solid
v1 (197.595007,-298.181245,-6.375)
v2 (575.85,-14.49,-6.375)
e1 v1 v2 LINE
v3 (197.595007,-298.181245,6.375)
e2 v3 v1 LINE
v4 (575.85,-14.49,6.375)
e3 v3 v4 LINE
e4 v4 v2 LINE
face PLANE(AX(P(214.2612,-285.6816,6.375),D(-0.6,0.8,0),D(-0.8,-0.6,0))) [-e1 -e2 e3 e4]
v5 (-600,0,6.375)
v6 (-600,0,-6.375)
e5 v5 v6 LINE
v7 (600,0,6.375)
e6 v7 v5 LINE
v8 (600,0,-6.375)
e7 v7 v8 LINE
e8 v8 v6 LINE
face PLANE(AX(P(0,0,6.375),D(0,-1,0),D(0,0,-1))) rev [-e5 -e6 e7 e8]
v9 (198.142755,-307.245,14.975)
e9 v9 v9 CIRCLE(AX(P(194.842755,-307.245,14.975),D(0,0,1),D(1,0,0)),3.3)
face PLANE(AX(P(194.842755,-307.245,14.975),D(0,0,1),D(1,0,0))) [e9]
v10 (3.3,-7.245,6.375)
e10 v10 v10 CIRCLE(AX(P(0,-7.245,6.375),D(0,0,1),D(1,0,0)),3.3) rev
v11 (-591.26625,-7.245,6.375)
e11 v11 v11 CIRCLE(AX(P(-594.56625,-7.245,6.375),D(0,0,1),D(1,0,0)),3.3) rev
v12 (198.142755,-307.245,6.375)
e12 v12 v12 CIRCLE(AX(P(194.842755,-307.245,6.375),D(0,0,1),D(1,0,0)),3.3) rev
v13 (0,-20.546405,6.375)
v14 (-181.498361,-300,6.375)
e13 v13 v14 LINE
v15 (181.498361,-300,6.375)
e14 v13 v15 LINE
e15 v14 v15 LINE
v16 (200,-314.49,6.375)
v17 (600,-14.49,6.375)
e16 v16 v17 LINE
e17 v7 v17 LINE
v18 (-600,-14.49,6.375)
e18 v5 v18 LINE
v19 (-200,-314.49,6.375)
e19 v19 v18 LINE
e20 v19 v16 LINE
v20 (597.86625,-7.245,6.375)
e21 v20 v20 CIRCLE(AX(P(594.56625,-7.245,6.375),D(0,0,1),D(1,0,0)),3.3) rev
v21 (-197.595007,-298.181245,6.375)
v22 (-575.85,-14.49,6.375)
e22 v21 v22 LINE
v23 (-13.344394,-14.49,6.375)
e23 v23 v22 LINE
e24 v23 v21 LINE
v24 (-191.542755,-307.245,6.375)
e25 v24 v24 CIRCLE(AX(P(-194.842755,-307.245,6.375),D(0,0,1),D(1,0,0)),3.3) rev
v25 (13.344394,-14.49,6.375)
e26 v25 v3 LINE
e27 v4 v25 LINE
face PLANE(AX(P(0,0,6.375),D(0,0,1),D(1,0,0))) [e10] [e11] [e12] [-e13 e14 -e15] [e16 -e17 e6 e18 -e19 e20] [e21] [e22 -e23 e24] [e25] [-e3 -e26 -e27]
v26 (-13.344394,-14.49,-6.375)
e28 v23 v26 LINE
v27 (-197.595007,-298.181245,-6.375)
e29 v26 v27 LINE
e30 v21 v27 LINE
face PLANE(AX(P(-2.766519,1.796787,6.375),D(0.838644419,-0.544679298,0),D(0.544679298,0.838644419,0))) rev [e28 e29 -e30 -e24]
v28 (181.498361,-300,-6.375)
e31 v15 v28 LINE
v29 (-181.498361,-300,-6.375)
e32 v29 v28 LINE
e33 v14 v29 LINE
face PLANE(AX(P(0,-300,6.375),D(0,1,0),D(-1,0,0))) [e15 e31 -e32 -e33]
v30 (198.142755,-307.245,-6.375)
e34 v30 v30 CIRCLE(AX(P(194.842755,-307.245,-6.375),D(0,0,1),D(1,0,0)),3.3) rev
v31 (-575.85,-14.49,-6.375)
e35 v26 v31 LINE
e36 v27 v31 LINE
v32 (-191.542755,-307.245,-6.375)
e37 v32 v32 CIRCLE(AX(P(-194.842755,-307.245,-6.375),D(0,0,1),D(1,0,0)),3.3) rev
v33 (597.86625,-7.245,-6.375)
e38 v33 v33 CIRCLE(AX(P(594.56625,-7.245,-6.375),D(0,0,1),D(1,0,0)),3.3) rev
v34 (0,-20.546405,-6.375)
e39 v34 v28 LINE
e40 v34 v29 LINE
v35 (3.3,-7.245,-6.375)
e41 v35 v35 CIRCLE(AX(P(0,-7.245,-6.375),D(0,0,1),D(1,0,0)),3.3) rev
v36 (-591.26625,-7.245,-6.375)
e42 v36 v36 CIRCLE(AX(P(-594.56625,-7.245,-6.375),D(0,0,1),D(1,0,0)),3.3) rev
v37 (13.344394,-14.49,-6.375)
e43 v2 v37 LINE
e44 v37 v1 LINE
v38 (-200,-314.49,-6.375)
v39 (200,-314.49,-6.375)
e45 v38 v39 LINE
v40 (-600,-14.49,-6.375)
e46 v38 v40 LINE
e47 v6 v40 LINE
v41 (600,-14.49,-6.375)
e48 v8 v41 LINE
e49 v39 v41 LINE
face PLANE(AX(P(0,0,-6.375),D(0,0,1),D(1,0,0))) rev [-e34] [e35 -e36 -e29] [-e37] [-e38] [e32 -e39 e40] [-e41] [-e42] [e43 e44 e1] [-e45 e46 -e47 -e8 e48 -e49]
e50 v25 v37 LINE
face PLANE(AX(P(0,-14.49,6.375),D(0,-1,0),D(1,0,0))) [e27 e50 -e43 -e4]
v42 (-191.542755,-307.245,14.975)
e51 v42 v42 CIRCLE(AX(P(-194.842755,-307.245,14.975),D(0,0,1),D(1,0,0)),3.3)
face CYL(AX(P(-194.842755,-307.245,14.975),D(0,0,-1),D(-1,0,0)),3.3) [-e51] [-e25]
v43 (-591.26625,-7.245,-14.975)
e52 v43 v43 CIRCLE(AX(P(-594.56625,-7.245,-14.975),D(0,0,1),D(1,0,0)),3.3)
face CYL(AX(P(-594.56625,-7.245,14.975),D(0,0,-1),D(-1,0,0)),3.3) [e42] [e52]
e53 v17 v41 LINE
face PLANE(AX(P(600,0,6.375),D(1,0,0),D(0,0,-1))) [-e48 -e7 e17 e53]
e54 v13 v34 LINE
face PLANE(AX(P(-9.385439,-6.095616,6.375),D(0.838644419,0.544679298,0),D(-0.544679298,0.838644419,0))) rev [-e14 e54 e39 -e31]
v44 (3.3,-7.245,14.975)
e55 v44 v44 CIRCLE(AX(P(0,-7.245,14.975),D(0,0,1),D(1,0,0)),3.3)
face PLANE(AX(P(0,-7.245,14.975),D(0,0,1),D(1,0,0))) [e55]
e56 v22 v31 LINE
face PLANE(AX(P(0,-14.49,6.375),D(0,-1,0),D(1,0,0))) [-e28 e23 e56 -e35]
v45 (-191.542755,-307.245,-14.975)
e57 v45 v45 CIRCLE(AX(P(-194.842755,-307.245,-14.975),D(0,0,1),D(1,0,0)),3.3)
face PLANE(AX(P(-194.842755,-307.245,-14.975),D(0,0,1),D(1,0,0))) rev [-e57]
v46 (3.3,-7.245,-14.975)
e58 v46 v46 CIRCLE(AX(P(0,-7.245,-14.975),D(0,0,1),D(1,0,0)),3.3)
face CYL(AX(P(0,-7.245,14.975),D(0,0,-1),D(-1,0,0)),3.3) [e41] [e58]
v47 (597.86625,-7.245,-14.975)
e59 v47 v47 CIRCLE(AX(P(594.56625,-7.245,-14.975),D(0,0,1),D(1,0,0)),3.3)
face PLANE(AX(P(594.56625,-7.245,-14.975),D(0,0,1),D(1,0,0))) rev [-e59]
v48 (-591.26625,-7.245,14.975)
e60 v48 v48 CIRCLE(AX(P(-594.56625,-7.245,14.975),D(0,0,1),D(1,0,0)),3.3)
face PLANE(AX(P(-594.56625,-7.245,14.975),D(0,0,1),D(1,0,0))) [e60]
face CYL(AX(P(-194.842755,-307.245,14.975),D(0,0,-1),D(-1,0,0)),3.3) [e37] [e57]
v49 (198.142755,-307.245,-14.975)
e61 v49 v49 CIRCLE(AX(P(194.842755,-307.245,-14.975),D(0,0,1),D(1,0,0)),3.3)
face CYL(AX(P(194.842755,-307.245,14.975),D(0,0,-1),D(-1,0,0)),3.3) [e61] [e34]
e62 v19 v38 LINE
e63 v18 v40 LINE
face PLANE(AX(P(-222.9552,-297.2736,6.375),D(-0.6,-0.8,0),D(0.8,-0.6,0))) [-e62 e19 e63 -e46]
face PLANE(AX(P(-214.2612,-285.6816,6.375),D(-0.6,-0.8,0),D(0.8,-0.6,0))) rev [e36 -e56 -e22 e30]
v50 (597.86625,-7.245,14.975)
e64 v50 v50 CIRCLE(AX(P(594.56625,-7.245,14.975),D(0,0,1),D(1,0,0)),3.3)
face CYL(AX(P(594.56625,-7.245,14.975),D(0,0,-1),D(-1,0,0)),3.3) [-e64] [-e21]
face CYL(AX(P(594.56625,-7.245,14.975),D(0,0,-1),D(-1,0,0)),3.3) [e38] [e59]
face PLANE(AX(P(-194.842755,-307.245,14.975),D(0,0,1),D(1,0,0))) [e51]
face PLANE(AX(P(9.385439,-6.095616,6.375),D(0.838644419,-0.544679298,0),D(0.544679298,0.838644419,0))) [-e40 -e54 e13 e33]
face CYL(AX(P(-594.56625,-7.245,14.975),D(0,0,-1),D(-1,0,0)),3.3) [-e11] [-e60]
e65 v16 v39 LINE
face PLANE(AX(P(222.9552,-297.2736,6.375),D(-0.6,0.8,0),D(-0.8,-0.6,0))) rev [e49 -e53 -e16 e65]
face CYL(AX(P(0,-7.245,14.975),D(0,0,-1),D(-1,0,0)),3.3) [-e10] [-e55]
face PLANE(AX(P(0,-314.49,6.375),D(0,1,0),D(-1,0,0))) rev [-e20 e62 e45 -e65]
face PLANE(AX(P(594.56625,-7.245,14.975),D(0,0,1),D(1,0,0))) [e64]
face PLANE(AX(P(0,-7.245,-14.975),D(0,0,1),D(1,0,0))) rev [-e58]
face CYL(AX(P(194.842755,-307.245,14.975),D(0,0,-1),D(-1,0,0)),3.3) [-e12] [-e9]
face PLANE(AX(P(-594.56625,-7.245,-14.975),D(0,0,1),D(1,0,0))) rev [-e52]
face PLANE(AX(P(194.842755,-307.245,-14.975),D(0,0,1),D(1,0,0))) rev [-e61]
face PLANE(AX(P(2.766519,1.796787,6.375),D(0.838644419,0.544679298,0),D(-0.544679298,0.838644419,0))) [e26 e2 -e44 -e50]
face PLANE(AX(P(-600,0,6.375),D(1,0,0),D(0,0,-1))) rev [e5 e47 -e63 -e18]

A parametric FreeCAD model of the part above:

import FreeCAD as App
import Part
import Sketcher

V = App.Vector
Q = App.Units.Quantity

doc = App.newDocument("Part")
params = doc.addObject("Spreadsheet::Sheet", "Params")
for row, (alias, value) in enumerate([
    ("sketch1_width", "400 mm"),
    ("sketch1_width2", "1200 mm"),
    ("sketch1_length", "500 mm"),
    ("sketch1_height", "14.49 mm"),
    ("pad1_length", "12.75 mm"),
    ("sketch2_diameter", "6.6 mm"),
    ("pad2_length", "29.95 mm"),
], start=1):
    params.set(f"A{row}", alias)
    params.set(f"B{row}", "=" + value)
    params.setAlias(f"B{row}", alias)

body = doc.addObject("PartDesign::Body", "Body")

# Sketch on XY plane
sketch1 = body.newObject("Sketcher::SketchObject", "Sketch")
sketch1.AttachmentSupport = (doc.getObject("XY_Plane"), [""])
sketch1.MapMode = "FlatFace"
sketch1.addGeometry(Part.LineSegment(V(-600, -14, 0), V(-200, -314, 0)), False)
sketch1.addGeometry(Part.LineSegment(V(-200, -314, 0), V(200, -314, 0)), False)
sketch1.addGeometry(Part.LineSegment(V(200, -314, 0), V(600, -14, 0)), False)
sketch1.addGeometry(Part.LineSegment(V(600, -14, 0), V(600, 0, 0)), False)
sketch1.addGeometry(Part.LineSegment(V(600, 0, 0), V(-600, 0, 0)), False)
sketch1.addGeometry(Part.LineSegment(V(-600, 0, 0), V(-600, -14, 0)), False)
sketch1.addGeometry(Part.LineSegment(V(-13, -14, 0), V(-198, -298, 0)), False)
sketch1.addGeometry(Part.LineSegment(V(-198, -298, 0), V(-576, -14, 0)), False)
sketch1.addGeometry(Part.LineSegment(V(-576, -14, 0), V(-13, -14, 0)), False)
sketch1.addGeometry(Part.LineSegment(V(181, -300, 0), V(-181, -300, 0)), False)
sketch1.addGeometry(Part.LineSegment(V(-181, -300, 0), V(0, -21, 0)), False)
sketch1.addGeometry(Part.LineSegment(V(0, -21, 0), V(181, -300, 0)), False)
sketch1.addGeometry(Part.LineSegment(V(13, -14, 0), V(576, -14, 0)), False)
sketch1.addGeometry(Part.LineSegment(V(576, -14, 0), V(198, -298, 0)), False)
sketch1.addGeometry(Part.LineSegment(V(198, -298, 0), V(13, -14, 0)), False)
sketch1.addConstraint(Sketcher.Constraint("Coincident", 0, 2, 1, 1))
sketch1.addConstraint(Sketcher.Constraint("Coincident", 1, 2, 2, 1))
sketch1.addConstraint(Sketcher.Constraint("Coincident", 2, 2, 3, 1))
sketch1.addConstraint(Sketcher.Constraint("Coincident", 3, 2, 4, 1))
sketch1.addConstraint(Sketcher.Constraint("Coincident", 4, 2, 5, 1))
sketch1.addConstraint(Sketcher.Constraint("Coincident", 5, 2, 0, 1))
sketch1.addConstraint(Sketcher.Constraint("Coincident", 6, 2, 7, 1))
sketch1.addConstraint(Sketcher.Constraint("Coincident", 7, 2, 8, 1))
sketch1.addConstraint(Sketcher.Constraint("Coincident", 8, 2, 6, 1))
sketch1.addConstraint(Sketcher.Constraint("Coincident", 9, 2, 10, 1))
sketch1.addConstraint(Sketcher.Constraint("Coincident", 10, 2, 11, 1))
sketch1.addConstraint(Sketcher.Constraint("Coincident", 11, 2, 9, 1))
sketch1.addConstraint(Sketcher.Constraint("Coincident", 12, 2, 13, 1))
sketch1.addConstraint(Sketcher.Constraint("Coincident", 13, 2, 14, 1))
sketch1.addConstraint(Sketcher.Constraint("Coincident", 14, 2, 12, 1))
sketch1.addConstraint(Sketcher.Constraint("Horizontal", 1))
sketch1.addConstraint(Sketcher.Constraint("Vertical", 3))
sketch1.addConstraint(Sketcher.Constraint("Horizontal", 4))
sketch1.addConstraint(Sketcher.Constraint("Vertical", 5))
sketch1.addConstraint(Sketcher.Constraint("Horizontal", 8))
sketch1.addConstraint(Sketcher.Constraint("Horizontal", 9))
sketch1.addConstraint(Sketcher.Constraint("Horizontal", 12))
sketch1.addConstraint(Sketcher.Constraint("Symmetric", 3, 2, 4, 2, -1, 1))
sketch1.addConstraint(Sketcher.Constraint("Symmetric", 7, 2, 12, 2, -2))
sketch1.addConstraint(Sketcher.Constraint("Symmetric", 6, 2, 13, 2, -2))
sketch1.addConstraint(Sketcher.Constraint("PointOnObject", 10, 2, -2))
sketch1.addConstraint(Sketcher.Constraint("Parallel", 0, 7))
sketch1.addConstraint(Sketcher.Constraint("Parallel", 6, 10))
sketch1.addConstraint(Sketcher.Constraint("Parallel", 2, 13))
sketch1.addConstraint(Sketcher.Constraint("Parallel", 11, 14))
sketch1.addConstraint(Sketcher.Constraint("Horizontal", 2, 2, 5, 2))
sketch1.addConstraint(Sketcher.Constraint("Horizontal", 5, 2, 7, 2))
sketch1.addConstraint(Sketcher.Constraint("Equal", 8, 12))
sketch1.addConstraint(Sketcher.Constraint("DistanceX", 1, 1, 1, 2, Q("400 mm")))
sketch1.addConstraint(Sketcher.Constraint("DistanceX", 4, 2, 4, 1, Q("1200 mm")))
sketch1.addConstraint(Sketcher.Constraint("Distance", 0, Q("500 mm")))
sketch1.addConstraint(Sketcher.Constraint("DistanceY", 9, 2, -1, 1, Q("300 mm")))
sketch1.addConstraint(Sketcher.Constraint("DistanceY", 3, 1, 3, 2, Q("14.49 mm")))
sketch1.addConstraint(Sketcher.Constraint("DistanceX", 7, 2, -1, 1, Q("575.85 mm")))
sketch1.addConstraint(Sketcher.Constraint("DistanceX", 8, 2, 13, 2, Q("210.939401 mm")))
sketch1.addConstraint(Sketcher.Constraint("Distance", 7, Q("472.818742 mm")))
sketch1.addConstraint(Sketcher.Constraint("DistanceX", 9, 2, 9, 1, Q("362.996723 mm")))
sketch1.setExpression("Constraints[33]", "Params.sketch1_width")
sketch1.setExpression("Constraints[34]", "Params.sketch1_width2")
sketch1.setExpression("Constraints[35]", "Params.sketch1_length")
sketch1.setExpression("Constraints[37]", "Params.sketch1_height")
pad1 = body.newObject("PartDesign::Pad", "Pad")
pad1.Profile = sketch1
pad1.setExpression("Length", "Params.pad1_length")
pad1.Midplane = True

# Sketch on XY plane
sketch2 = body.newObject("Sketcher::SketchObject", "Sketch001")
sketch2.AttachmentSupport = (doc.getObject("XY_Plane"), [""])
sketch2.MapMode = "FlatFace"
sketch2.addGeometry(Part.Circle(V(0, -7.2, 0), V(0, 0, 1), 3.3), False)
sketch2.addGeometry(Part.Circle(V(-194.8, -307.2, 0), V(0, 0, 1), 3.3), False)
sketch2.addGeometry(Part.Circle(V(194.8, -307.2, 0), V(0, 0, 1), 3.3), False)
sketch2.addGeometry(Part.Circle(V(594.6, -7.2, 0), V(0, 0, 1), 3.3), False)
sketch2.addGeometry(Part.Circle(V(-594.6, -7.2, 0), V(0, 0, 1), 3.3), False)
sketch2.addConstraint(Sketcher.Constraint("Equal", 0, 1))
sketch2.addConstraint(Sketcher.Constraint("Equal", 1, 2))
sketch2.addConstraint(Sketcher.Constraint("Equal", 2, 3))
sketch2.addConstraint(Sketcher.Constraint("Equal", 3, 4))
sketch2.addConstraint(Sketcher.Constraint("Symmetric", 1, 3, 2, 3, -2))
sketch2.addConstraint(Sketcher.Constraint("Symmetric", 3, 3, 4, 3, -2))
sketch2.addConstraint(Sketcher.Constraint("PointOnObject", 0, 3, -2))
sketch2.addConstraint(Sketcher.Constraint("Horizontal", 0, 3, 3, 3))
sketch2.addConstraint(Sketcher.Constraint("Diameter", 0, Q("6.6 mm")))
sketch2.addConstraint(Sketcher.Constraint("DistanceY", 1, 3, 0, 3, Q("300 mm")))
sketch2.addConstraint(Sketcher.Constraint("DistanceY", 0, 3, -1, 1, Q("7.245 mm")))
sketch2.addConstraint(Sketcher.Constraint("DistanceX", 4, 3, 3, 3, Q("1189.1325 mm")))
sketch2.addConstraint(Sketcher.Constraint("DistanceX", 1, 3, 2, 3, Q("389.685511 mm")))
sketch2.setExpression("Constraints[8]", "Params.sketch2_diameter")
pad2 = body.newObject("PartDesign::Pad", "Pad001")
pad2.Profile = sketch2
pad2.setExpression("Length", "Params.pad2_length")
pad2.Midplane = True

doc.recompute()
